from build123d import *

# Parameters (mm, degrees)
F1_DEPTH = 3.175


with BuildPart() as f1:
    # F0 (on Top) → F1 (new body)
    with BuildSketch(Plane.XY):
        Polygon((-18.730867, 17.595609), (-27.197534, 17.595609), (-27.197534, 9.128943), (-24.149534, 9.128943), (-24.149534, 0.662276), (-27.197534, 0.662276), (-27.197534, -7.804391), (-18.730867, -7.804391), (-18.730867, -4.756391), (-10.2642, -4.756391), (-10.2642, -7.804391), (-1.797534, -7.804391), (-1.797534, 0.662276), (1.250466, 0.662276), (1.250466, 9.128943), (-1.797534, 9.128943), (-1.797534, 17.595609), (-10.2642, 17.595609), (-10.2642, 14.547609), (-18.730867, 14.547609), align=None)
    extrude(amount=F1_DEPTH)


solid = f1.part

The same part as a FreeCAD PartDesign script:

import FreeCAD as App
import Part
import Sketcher
Q = App.Units.Quantity

doc = App.newDocument("Part")
body = doc.addObject("PartDesign::Body", "Body")

# Sketch on XY plane
sketch1 = body.newObject("Sketcher::SketchObject", "Sketch")
sketch1.AttachmentSupport = (doc.getObject("XY_Plane"), [""])
sketch1.MapMode = "FlatFace"
sketch1.addGeometry(Part.LineSegment(App.Vector(-18.730867, 17.595609, 0), App.Vector(-27.197534, 17.595609, 0)), False)
sketch1.addGeometry(Part.LineSegment(App.Vector(-27.197534, 17.595609, 0), App.Vector(-27.197534, 9.128943, 0)), False)
sketch1.addGeometry(Part.LineSegment(App.Vector(-27.197534, 9.128943, 0), App.Vector(-24.149534, 9.128943, 0)), False)
sketch1.addGeometry(Part.LineSegment(App.Vector(-24.149534, 9.128943, 0), App.Vector(-24.149534, 0.662276, 0)), False)
sketch1.addGeometry(Part.LineSegment(App.Vector(-24.149534, 0.662276, 0), App.Vector(-27.197534, 0.662276, 0)), False)
sketch1.addGeometry(Part.LineSegment(App.Vector(-27.197534, 0.662276, 0), App.Vector(-27.197534, -7.804391, 0)), False)
sketch1.addGeometry(Part.LineSegment(App.Vector(-27.197534, -7.804391, 0), App.Vector(-18.730867, -7.804391, 0)), False)
sketch1.addGeometry(Part.LineSegment(App.Vector(-18.730867, -7.804391, 0), App.Vector(-18.730867, -4.756391, 0)), False)
sketch1.addGeometry(Part.LineSegment(App.Vector(-18.730867, -4.756391, 0), App.Vector(-10.2642, -4.756391, 0)), False)
sketch1.addGeometry(Part.LineSegment(App.Vector(-10.2642, -4.756391, 0), App.Vector(-10.2642, -7.804391, 0)), False)
sketch1.addGeometry(Part.LineSegment(App.Vector(-10.2642, -7.804391, 0), App.Vector(-1.797534, -7.804391, 0)), False)
sketch1.addGeometry(Part.LineSegment(App.Vector(-1.797534, -7.804391, 0), App.Vector(-1.797534, 0.662276, 0)), False)
sketch1.addGeometry(Part.LineSegment(App.Vector(-1.797534, 0.662276, 0), App.Vector(1.250466, 0.662276, 0)), False)
sketch1.addGeometry(Part.LineSegment(App.Vector(1.250466, 0.662276, 0), App.Vector(1.250466, 9.128943, 0)), False)
sketch1.addGeometry(Part.LineSegment(App.Vector(1.250466, 9.128943, 0), App.Vector(-1.797534, 9.128943, 0)), False)
sketch1.addGeometry(Part.LineSegment(App.Vector(-1.797534, 9.128943, 0), App.Vector(-1.797534, 17.595609, 0)), False)
sketch1.addGeometry(Part.LineSegment(App.Vector(-1.797534, 17.595609, 0), App.Vector(-10.2642, 17.595609, 0)), False)
sketch1.addGeometry(Part.LineSegment(App.Vector(-10.2642, 17.595609, 0), App.Vector(-10.2642, 14.547609, 0)), False)
sketch1.addGeometry(Part.LineSegment(App.Vector(-10.2642, 14.547609, 0), App.Vector(-18.730867, 14.547609, 0)), False)
sketch1.addGeometry(Part.LineSegment(App.Vector(-18.730867, 14.547609, 0), App.Vector(-18.730867, 17.595609, 0)), False)
sketch1.addConstraint(Sketcher.Constraint("Coincident", 0, 2, 1, 1))
sketch1.addConstraint(Sketcher.Constraint("Coincident", 1, 2, 2, 1))
sketch1.addConstraint(Sketcher.Constraint("Coincident", 2, 2, 3, 1))
sketch1.addConstraint(Sketcher.Constraint("Coincident", 3, 2, 4, 1))
sketch1.addConstraint(Sketcher.Constraint("Coincident", 4, 2, 5, 1))
sketch1.addConstraint(Sketcher.Constraint("Coincident", 5, 2, 6, 1))
sketch1.addConstraint(Sketcher.Constraint("Coincident", 6, 2, 7, 1))
sketch1.addConstraint(Sketcher.Constraint("Coincident", 7, 2, 8, 1))
sketch1.addConstraint(Sketcher.Constraint("Coincident", 8, 2, 9, 1))
sketch1.addConstraint(Sketcher.Constraint("Coincident", 9, 2, 10, 1))
sketch1.addConstraint(Sketcher.Constraint("Coincident", 10, 2, 11, 1))
sketch1.addConstraint(Sketcher.Constraint("Coincident", 11, 2, 12, 1))
sketch1.addConstraint(Sketcher.Constraint("Coincident", 12, 2, 13, 1))
sketch1.addConstraint(Sketcher.Constraint("Coincident", 13, 2, 14, 1))
sketch1.addConstraint(Sketcher.Constraint("Coincident", 14, 2, 15, 1))
sketch1.addConstraint(Sketcher.Constraint("Coincident", 15, 2, 16, 1))
sketch1.addConstraint(Sketcher.Constraint("Coincident", 16, 2, 17, 1))
sketch1.addConstraint(Sketcher.Constraint("Coincident", 17, 2, 18, 1))
sketch1.addConstraint(Sketcher.Constraint("Coincident", 18, 2, 19, 1))
sketch1.addConstraint(Sketcher.Constraint("Coincident", 19, 2, 0, 1))
sketch1.addConstraint(Sketcher.Constraint("Horizontal", 0))
sketch1.addConstraint(Sketcher.Constraint("Vertical", 1))
sketch1.addConstraint(Sketcher.Constraint("Horizontal", 2))
sketch1.addConstraint(Sketcher.Constraint("Vertical", 3))
sketch1.addConstraint(Sketcher.Constraint("Horizontal", 4))
sketch1.addConstraint(Sketcher.Constraint("Vertical", 5))
sketch1.addConstraint(Sketcher.Constraint("Horizontal", 6))
sketch1.addConstraint(Sketcher.Constraint("Vertical", 7))
sketch1.addConstraint(Sketcher.Constraint("Horizontal", 8))
sketch1.addConstraint(Sketcher.Constraint("Vertical", 9))
sketch1.addConstraint(Sketcher.Constraint("Horizontal", 10))
sketch1.addConstraint(Sketcher.Constraint("Vertical", 11))
sketch1.addConstraint(Sketcher.Constraint("Horizontal", 12))
sketch1.addConstraint(Sketcher.Constraint("Vertical", 13))
sketch1.addConstraint(Sketcher.Constraint("Horizontal", 14))
sketch1.addConstraint(Sketcher.Constraint("Vertical", 15))
sketch1.addConstraint(Sketcher.Constraint("Horizontal", 16))
sketch1.addConstraint(Sketcher.Constraint("Vertical", 17))
sketch1.addConstraint(Sketcher.Constraint("Horizontal", 18))
sketch1.addConstraint(Sketcher.Constraint("Vertical", 19))
sketch1.addConstraint(Sketcher.Constraint("Horizontal", 6, 2, 9, 2))
sketch1.addConstraint(Sketcher.Constraint("Horizontal", 4, 2, 11, 2))
sketch1.addConstraint(Sketcher.Constraint("Horizontal", 2, 2, 13, 2))
sketch1.addConstraint(Sketcher.Constraint("Horizontal", 0, 2, 15, 2))
sketch1.addConstraint(Sketcher.Constraint("Vertical", 1, 2, 4, 2))
sketch1.addConstraint(Sketcher.Constraint("Vertical", 11, 2, 14, 2))
sketch1.addConstraint(Sketcher.Constraint("Vertical", 9, 2, 16, 2))
sketch1.addConstraint(Sketcher.Constraint("Vertical", 7, 2, 18, 2))
sketch1.addConstraint(Sketcher.Constraint("Equal", 6, 8))
sketch1.addConstraint(Sketcher.Constraint("Equal", 8, 10))
sketch1.addConstraint(Sketcher.Constraint("Equal", 4, 12))
sketch1.addConstraint(Sketcher.Constraint("Equal", 18, 1))
sketch1.addConstraint(Sketcher.Constraint("Equal", 1, 3))
sketch1.addConstraint(Sketcher.Constraint("Equal", 3, 5))
sketch1.addConstraint(Sketcher.Constraint("Equal", 14, 7))
sketch1.addConstraint(Sketcher.Constraint("Equal", 9, 17))
sketch1.addConstraint(Sketcher.Constraint("DistanceY", 5, 2, 0, 2, Q("1 in")))
sketch1.addConstraint(Sketcher.Constraint("DistanceX", 2, 1, 2, 2, Q("0.12 in")))
sketch1.addConstraint(Sketcher.Constraint("DistanceX", 8, 2, -1, 1, Q("10.2642 mm")))
sketch1.addConstraint(Sketcher.Constraint("DistanceY", -1, 1, 0, 2, Q("17.595609 mm")))
pad1 = body.newObject("PartDesign::Pad", "Pad")
pad1.Profile = sketch1
pad1.Length = Q("0.125 in")

doc.recompute()
